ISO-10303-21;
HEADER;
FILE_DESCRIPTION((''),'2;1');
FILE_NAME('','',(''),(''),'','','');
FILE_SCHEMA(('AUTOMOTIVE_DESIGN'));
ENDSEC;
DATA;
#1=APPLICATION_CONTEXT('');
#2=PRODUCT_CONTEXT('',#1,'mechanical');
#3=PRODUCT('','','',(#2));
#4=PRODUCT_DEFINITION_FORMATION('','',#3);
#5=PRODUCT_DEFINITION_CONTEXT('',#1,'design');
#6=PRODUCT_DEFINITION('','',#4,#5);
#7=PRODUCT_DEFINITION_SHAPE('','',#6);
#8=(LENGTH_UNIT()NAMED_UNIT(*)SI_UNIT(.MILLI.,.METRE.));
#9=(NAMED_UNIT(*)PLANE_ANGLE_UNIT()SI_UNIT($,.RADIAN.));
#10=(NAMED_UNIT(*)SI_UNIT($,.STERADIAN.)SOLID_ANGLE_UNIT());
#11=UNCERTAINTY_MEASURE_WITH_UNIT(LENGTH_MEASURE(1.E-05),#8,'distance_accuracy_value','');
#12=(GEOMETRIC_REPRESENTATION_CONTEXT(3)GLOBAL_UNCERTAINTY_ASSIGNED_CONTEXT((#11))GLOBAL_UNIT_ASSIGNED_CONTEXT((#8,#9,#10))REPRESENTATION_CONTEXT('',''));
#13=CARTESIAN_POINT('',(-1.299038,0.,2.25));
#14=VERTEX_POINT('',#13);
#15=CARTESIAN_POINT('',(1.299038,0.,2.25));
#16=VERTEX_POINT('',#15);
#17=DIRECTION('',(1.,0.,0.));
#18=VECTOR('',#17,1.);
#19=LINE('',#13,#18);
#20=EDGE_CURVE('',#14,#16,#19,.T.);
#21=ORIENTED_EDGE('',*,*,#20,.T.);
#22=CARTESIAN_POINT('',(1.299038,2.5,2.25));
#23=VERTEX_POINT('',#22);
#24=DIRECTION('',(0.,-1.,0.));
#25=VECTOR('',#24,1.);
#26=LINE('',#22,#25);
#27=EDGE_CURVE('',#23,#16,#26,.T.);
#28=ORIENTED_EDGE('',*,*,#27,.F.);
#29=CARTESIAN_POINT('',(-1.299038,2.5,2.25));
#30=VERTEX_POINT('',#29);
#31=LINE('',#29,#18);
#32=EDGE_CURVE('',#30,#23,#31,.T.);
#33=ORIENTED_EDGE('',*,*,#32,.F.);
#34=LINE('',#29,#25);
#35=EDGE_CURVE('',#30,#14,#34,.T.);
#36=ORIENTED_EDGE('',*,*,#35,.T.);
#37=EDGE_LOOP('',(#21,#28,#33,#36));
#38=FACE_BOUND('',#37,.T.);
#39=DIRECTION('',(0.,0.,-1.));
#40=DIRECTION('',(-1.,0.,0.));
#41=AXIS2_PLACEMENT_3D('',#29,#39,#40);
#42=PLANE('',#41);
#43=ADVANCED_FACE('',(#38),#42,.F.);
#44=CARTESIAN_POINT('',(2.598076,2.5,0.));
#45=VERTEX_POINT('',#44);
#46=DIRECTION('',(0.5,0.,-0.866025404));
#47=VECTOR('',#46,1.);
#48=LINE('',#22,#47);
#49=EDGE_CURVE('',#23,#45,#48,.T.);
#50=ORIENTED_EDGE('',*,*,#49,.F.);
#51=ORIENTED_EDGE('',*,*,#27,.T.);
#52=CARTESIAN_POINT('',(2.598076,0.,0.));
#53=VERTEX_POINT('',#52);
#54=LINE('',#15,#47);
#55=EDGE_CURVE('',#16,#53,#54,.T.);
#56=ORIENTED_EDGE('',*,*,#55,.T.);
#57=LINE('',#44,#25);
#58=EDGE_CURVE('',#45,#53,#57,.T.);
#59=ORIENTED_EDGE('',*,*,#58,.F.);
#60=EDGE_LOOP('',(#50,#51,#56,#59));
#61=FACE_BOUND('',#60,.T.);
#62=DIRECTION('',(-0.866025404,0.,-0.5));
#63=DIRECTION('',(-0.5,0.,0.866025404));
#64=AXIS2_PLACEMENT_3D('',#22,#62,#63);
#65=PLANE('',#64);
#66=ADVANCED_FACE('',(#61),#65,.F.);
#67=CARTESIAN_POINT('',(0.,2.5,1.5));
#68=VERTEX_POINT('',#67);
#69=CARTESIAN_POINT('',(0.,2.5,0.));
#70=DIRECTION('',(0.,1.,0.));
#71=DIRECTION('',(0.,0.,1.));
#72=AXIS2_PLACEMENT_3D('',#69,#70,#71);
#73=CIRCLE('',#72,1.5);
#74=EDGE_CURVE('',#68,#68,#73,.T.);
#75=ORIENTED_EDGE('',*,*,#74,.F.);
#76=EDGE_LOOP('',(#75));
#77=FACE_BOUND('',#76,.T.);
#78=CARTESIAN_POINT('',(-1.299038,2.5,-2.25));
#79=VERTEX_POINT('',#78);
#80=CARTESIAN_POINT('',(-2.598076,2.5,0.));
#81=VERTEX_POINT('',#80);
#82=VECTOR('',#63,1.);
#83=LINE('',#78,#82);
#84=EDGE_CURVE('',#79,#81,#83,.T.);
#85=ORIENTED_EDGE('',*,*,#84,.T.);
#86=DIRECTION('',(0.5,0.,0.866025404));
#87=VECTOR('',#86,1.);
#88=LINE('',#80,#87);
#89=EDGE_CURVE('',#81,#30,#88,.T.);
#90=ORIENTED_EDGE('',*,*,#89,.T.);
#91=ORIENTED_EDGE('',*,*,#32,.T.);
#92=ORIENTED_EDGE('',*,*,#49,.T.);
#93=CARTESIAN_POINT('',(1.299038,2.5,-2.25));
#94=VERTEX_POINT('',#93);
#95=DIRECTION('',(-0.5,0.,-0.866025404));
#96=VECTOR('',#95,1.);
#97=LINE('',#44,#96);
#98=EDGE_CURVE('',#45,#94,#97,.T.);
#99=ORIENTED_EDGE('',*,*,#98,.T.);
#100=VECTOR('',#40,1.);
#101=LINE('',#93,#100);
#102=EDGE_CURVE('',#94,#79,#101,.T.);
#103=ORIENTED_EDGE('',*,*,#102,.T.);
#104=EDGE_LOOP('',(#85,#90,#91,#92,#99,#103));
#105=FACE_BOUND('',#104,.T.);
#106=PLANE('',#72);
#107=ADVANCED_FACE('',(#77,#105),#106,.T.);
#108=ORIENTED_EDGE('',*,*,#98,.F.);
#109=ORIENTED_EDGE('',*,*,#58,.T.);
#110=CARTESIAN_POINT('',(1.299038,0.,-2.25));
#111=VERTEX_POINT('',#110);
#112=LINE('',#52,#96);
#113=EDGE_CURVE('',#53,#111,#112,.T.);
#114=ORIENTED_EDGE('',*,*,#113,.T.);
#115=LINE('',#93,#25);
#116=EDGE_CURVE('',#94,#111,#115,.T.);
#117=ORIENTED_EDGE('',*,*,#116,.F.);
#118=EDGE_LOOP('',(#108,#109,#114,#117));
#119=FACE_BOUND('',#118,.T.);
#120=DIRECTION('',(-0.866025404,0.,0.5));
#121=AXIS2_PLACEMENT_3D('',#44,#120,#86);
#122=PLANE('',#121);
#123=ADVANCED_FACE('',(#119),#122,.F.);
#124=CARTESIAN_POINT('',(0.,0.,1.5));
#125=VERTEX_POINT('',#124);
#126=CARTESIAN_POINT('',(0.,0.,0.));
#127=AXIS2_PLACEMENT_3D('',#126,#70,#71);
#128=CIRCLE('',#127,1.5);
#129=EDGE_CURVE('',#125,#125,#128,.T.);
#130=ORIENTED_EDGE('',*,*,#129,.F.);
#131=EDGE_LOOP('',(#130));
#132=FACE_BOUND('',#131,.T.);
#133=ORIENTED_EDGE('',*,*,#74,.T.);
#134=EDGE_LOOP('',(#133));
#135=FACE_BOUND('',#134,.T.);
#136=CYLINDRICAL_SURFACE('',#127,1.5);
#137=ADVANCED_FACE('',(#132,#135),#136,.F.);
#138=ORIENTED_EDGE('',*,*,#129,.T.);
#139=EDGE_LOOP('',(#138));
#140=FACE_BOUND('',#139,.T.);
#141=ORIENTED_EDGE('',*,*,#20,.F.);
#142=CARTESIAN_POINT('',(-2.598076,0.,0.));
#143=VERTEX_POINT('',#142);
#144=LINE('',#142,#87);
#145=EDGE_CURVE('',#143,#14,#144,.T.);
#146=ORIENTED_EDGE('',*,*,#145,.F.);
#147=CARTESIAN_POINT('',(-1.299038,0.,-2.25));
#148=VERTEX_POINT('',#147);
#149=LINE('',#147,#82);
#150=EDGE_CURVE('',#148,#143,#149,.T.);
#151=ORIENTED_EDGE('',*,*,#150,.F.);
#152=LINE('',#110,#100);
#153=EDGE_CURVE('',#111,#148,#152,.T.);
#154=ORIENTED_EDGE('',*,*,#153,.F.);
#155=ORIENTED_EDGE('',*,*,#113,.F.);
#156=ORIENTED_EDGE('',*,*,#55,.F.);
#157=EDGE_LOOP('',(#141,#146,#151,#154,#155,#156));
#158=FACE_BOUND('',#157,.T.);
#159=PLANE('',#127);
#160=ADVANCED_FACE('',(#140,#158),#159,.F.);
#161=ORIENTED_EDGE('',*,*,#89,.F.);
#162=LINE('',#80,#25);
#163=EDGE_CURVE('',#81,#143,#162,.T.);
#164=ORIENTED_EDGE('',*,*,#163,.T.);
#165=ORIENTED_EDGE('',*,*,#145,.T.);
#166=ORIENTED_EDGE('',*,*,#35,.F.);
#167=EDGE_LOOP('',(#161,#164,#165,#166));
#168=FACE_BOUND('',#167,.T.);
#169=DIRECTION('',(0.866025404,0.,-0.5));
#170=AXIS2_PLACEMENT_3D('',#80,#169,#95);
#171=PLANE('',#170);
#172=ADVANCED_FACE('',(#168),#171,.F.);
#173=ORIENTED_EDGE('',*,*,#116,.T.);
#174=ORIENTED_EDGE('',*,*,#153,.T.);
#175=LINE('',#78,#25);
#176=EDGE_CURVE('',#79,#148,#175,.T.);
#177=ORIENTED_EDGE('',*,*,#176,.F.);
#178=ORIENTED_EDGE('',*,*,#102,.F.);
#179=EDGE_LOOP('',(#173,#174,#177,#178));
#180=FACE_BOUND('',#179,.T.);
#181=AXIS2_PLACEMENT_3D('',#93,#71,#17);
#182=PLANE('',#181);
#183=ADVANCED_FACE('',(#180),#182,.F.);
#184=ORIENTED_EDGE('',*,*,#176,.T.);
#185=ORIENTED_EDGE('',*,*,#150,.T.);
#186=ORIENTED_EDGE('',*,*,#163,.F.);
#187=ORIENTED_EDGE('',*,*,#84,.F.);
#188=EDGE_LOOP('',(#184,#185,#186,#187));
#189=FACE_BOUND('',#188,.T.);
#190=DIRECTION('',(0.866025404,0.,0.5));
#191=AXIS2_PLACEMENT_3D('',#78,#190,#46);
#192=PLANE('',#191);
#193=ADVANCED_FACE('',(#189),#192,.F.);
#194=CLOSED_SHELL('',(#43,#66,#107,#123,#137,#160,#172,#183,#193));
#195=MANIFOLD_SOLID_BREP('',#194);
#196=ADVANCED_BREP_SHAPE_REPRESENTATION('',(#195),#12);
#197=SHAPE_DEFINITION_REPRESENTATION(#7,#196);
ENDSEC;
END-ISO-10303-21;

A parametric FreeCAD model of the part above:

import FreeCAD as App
import Part
import Sketcher
from FreeCAD import Vector
Q = App.Units.Quantity


def add_polygon(sketch, points):
    """Adds a closed chain of lines whose ends are joined by coincident constraints."""
    first, n = sketch.GeometryCount, len(points)
    for a, b in zip(points, points[1:] + points[:1]):
        sketch.addGeometry(Part.LineSegment(App.Vector(*a, 0), App.Vector(*b, 0)), False)
    for i in range(n):
        sketch.addConstraint(Sketcher.Constraint("Coincident", first + i, 2, first + (i + 1) % n, 1))

doc = App.newDocument("Part")
body = doc.addObject("PartDesign::Body", "Body")

# Sketch on XZ plane
sketch1 = body.newObject("Sketcher::SketchObject", "Sketch")
sketch1.AttachmentSupport = (doc.getObject("XZ_Plane"), [""])
sketch1.MapMode = "FlatFace"
add_polygon(sketch1, [(1.299038, 2.25), (2.598076, 0), (1.299038, -2.25), (-1.299038, -2.25), (-2.598076, 0), (-1.299038, 2.25)])  # lines 0-5
sketch1.addConstraint(Sketcher.Constraint("Horizontal", 2))
sketch1.addConstraint(Sketcher.Constraint("Horizontal", 5))
sketch1.addConstraint(Sketcher.Constraint("Symmetric", 0, 2, 3, 2, -1, 1))
sketch1.addConstraint(Sketcher.Constraint("Symmetric", 1, 2, 4, 2, -1, 1))
sketch1.addConstraint(Sketcher.Constraint("PointOnObject", 0, 2, -1))
sketch1.addConstraint(Sketcher.Constraint("Parallel", 0, 3))
sketch1.addConstraint(Sketcher.Constraint("Vertical", 2, 2, 4, 2))
sketch1.addConstraint(Sketcher.Constraint("Angle", 0, Q("-60 deg")))
sketch1.addConstraint(Sketcher.Constraint("DistanceY", 2, 2, 4, 2, 4.5))
sketch1.addConstraint(Sketcher.Constraint("DistanceX", 2, 2, 2, 1, 2.598076))
pad1 = body.newObject("PartDesign::Pad", "Pad")
pad1.Profile = sketch1
pad1.Length = 2.5
pad1.Reversed = True

# Sketch on XZ plane
sketch2 = body.newObject("Sketcher::SketchObject", "Sketch001")
sketch2.AttachmentSupport = (doc.getObject("XZ_Plane"), [""])
sketch2.MapMode = "FlatFace"
sketch2.AttachmentOffset = App.Placement(Vector(0, 0, -2.5), App.Rotation())
sketch2.addGeometry(Part.Circle(Vector(0, 0, 0), Vector(0, 0, 1), 1.5), False)
sketch2.addConstraint(Sketcher.Constraint("Coincident", 0, 3, -1, 1))
sketch2.addConstraint(Sketcher.Constraint("Diameter", 0, 3.0))
pocket1 = body.newObject("PartDesign::Pocket", "Pocket")
pocket1.Profile = sketch2
pocket1.Length = 2.5
pocket1.Reversed = True

doc.recompute()
